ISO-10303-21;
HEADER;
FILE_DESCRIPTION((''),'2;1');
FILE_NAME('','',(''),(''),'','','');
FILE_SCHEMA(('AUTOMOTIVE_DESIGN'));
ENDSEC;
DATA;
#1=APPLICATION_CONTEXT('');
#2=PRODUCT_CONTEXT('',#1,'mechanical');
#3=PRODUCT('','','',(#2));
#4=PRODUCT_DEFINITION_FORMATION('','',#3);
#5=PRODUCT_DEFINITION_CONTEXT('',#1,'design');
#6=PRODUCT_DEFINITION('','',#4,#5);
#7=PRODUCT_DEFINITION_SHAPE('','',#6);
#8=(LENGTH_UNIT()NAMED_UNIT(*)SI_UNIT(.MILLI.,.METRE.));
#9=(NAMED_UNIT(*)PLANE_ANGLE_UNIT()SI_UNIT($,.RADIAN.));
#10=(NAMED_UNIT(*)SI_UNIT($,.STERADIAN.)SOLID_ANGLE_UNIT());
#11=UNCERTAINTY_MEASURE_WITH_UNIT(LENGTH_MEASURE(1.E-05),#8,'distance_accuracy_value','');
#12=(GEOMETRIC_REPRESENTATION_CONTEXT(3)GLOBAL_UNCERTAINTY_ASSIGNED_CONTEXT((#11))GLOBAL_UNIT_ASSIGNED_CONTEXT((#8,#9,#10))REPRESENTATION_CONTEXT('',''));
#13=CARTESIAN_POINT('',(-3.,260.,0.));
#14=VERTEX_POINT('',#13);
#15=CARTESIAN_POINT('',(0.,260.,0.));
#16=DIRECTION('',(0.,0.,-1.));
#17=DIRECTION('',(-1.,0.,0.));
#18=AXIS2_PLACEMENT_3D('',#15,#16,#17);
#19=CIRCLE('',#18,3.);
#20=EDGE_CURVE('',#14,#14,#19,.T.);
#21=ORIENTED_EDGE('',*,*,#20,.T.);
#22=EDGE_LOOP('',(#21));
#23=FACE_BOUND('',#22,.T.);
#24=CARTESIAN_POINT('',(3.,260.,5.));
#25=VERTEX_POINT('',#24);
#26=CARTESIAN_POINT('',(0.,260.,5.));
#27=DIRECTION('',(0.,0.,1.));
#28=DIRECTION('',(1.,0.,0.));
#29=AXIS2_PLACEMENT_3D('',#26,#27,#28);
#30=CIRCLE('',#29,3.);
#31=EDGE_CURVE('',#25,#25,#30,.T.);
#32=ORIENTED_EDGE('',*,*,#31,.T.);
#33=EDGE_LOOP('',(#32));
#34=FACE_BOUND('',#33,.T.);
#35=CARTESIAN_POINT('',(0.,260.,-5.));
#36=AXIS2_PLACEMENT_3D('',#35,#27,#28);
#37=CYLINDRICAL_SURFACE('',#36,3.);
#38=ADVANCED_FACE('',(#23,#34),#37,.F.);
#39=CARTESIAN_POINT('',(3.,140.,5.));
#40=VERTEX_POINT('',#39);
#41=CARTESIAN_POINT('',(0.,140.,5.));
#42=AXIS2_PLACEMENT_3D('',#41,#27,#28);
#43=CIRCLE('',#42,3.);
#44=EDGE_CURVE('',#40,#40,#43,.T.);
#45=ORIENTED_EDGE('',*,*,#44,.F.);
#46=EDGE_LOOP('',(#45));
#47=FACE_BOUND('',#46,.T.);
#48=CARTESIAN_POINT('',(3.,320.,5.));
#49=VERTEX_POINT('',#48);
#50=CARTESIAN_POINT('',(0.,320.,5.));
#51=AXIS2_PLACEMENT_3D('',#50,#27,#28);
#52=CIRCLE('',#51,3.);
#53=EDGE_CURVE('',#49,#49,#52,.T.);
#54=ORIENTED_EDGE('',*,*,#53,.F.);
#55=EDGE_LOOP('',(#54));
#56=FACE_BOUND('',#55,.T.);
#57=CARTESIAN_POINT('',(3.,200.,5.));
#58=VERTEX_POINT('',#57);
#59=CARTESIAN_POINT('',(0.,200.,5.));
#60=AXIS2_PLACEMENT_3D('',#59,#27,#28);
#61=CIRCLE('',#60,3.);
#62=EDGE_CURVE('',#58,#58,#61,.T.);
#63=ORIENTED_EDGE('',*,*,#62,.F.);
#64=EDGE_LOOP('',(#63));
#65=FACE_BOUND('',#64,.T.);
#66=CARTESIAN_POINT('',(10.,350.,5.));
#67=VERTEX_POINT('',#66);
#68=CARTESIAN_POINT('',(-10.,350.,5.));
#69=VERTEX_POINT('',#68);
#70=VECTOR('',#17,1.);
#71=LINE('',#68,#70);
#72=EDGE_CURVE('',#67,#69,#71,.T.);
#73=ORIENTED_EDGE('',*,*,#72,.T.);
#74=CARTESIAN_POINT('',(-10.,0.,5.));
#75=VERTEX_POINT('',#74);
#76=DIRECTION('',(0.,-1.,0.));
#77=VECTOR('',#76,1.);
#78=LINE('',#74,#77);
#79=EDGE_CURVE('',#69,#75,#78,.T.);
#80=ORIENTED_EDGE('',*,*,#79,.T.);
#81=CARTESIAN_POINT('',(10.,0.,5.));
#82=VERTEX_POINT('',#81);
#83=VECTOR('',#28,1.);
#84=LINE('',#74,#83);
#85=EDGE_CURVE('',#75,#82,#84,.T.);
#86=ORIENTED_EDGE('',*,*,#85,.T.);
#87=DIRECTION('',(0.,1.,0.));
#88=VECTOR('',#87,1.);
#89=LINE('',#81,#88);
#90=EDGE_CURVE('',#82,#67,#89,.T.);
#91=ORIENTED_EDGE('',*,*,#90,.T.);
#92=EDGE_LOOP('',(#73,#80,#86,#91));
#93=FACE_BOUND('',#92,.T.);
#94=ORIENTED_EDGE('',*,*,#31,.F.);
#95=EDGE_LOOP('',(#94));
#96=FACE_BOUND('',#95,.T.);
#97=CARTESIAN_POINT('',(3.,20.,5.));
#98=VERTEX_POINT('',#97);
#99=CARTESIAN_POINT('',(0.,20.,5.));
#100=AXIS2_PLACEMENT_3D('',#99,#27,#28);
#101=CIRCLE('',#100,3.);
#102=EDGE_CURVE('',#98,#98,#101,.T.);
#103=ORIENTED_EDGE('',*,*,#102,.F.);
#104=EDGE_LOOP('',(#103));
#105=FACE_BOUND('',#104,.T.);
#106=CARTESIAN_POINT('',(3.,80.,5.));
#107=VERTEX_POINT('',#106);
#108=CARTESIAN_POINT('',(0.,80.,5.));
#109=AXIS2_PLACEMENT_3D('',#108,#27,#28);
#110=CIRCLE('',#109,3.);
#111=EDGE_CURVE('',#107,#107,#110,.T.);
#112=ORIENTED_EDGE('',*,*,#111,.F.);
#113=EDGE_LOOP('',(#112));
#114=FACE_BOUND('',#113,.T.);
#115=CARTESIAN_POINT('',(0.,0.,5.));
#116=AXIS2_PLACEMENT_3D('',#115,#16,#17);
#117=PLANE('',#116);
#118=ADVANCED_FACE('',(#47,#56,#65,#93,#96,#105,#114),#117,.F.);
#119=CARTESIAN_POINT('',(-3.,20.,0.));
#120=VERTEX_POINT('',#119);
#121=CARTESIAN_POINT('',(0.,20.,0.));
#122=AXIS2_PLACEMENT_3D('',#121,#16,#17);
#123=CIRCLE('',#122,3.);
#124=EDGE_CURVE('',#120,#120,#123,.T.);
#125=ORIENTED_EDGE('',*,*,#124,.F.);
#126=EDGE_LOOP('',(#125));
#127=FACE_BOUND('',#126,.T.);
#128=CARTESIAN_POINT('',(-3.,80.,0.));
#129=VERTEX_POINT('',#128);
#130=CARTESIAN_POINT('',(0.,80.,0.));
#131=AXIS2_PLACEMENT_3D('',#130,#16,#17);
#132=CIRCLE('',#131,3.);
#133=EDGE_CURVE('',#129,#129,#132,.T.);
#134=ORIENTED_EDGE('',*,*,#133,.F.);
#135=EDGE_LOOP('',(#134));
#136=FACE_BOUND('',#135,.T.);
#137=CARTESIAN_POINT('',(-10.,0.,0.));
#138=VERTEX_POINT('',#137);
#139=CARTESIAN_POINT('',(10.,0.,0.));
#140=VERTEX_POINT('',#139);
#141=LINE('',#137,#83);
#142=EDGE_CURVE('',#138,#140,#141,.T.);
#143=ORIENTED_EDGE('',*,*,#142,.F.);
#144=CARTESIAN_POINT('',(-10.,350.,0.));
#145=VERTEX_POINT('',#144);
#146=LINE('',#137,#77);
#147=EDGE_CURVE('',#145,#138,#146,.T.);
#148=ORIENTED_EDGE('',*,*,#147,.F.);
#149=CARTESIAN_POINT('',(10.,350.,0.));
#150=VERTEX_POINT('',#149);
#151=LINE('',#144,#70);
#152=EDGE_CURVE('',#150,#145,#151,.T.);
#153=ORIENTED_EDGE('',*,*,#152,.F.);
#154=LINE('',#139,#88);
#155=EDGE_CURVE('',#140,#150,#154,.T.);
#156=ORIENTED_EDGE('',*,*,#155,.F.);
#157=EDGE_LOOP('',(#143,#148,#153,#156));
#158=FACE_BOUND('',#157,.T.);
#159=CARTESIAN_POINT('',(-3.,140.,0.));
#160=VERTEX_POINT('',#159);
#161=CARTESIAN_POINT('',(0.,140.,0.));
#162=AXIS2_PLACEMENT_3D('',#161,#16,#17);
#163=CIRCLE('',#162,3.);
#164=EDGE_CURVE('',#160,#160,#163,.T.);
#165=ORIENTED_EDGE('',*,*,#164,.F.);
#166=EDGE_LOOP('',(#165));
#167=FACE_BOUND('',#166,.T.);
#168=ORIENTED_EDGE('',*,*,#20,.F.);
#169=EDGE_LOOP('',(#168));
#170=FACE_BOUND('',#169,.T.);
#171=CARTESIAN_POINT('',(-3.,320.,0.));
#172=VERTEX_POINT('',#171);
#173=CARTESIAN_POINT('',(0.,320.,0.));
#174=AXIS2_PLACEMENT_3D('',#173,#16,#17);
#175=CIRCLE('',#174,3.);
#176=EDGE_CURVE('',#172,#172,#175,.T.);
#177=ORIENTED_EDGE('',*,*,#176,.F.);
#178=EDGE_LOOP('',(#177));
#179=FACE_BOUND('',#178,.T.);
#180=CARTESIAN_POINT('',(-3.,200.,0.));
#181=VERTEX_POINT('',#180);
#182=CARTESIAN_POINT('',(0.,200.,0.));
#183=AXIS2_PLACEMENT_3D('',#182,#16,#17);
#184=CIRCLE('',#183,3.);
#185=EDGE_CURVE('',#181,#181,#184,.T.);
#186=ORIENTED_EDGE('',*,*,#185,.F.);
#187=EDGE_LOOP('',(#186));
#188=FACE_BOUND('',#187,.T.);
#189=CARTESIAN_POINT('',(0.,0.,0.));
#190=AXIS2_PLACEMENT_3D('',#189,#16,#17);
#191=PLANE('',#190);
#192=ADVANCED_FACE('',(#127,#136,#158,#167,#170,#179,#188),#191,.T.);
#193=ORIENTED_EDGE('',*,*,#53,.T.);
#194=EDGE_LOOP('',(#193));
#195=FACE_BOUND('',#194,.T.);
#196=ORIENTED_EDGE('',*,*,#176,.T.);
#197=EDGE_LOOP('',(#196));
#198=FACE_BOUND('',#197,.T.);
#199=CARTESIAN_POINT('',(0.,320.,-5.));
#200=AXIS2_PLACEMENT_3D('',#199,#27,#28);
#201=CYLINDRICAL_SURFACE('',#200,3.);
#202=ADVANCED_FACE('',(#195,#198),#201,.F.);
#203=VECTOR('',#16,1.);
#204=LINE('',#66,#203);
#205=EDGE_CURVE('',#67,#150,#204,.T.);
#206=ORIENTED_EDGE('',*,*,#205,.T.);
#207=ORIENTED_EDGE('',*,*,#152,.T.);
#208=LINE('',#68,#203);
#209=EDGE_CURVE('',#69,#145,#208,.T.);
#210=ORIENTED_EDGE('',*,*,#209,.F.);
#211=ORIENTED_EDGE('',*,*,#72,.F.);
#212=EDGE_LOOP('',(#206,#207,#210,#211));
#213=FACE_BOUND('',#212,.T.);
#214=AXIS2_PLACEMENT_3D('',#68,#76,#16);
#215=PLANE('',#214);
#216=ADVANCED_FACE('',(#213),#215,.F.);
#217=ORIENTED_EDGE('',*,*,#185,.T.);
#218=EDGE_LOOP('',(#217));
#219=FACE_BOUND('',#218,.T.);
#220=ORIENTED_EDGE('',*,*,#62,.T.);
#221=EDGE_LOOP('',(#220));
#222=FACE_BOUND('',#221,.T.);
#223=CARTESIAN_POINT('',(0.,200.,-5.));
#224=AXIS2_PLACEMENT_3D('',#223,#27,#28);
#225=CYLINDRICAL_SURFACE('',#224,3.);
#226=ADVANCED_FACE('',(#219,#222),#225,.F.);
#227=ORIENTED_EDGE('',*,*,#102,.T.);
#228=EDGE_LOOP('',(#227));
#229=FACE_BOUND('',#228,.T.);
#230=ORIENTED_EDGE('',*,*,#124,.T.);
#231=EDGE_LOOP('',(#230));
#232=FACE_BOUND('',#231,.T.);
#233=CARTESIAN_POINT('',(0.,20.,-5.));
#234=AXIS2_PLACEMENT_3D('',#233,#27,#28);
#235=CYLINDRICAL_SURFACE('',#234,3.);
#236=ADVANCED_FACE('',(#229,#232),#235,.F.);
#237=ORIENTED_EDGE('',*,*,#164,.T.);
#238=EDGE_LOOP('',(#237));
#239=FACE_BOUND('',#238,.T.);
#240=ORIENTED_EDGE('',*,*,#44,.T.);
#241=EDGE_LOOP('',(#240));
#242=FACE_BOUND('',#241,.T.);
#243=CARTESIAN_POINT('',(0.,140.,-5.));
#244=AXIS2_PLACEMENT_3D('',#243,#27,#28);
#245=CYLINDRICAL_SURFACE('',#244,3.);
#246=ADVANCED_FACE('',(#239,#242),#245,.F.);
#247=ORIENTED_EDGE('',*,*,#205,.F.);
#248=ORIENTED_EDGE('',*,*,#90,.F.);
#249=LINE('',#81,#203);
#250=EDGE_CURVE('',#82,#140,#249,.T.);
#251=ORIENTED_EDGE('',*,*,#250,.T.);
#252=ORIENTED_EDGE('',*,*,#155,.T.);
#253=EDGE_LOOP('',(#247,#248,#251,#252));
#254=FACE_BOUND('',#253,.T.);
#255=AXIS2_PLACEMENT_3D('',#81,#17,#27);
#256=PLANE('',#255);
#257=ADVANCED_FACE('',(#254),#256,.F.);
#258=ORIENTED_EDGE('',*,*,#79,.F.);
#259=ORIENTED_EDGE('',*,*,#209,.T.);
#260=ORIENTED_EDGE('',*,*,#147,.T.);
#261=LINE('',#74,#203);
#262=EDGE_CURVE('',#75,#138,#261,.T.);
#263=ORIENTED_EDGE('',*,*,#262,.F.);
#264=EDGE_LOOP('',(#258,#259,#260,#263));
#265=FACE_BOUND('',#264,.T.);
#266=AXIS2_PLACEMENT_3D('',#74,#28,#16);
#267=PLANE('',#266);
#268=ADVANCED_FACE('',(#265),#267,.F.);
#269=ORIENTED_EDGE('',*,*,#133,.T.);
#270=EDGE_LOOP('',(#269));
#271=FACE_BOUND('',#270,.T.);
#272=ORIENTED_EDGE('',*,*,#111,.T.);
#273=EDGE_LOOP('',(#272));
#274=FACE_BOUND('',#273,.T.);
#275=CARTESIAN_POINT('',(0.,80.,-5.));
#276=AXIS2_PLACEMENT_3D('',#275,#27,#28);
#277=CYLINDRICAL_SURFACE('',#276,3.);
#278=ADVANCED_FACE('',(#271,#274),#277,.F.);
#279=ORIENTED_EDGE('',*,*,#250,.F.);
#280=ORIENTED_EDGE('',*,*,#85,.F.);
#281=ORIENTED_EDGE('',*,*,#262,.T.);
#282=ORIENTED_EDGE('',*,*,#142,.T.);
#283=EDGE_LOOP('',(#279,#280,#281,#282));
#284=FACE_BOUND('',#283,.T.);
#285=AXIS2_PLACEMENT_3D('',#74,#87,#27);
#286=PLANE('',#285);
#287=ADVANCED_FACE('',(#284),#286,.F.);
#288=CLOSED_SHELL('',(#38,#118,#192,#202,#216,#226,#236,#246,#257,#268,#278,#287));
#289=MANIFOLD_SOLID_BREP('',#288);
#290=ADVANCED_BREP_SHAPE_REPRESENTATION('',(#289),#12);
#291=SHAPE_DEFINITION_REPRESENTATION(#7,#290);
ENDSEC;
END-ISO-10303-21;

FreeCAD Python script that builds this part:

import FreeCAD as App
import Part
import Sketcher
from FreeCAD import Vector

doc = App.newDocument("Part")
body = doc.addObject("PartDesign::Body", "Body")

sketch1 = body.newObject("Sketcher::SketchObject", "Sketch")
sketch1.AttachmentSupport = (doc.getObject("XY_Plane"), [""])
sketch1.MapMode = "FlatFace"
sketch1.addGeometry([
    Part.LineSegment(Vector(-10, 350, 0), Vector(-10, 0, 0)),
    Part.LineSegment(Vector(-10, 0, 0), Vector(10, 0, 0)),
    Part.LineSegment(Vector(10, 0, 0), Vector(10, 350, 0)),
    Part.LineSegment(Vector(10, 350, 0), Vector(-10, 350, 0)),
], False)
sketch1.addConstraint([
    Sketcher.Constraint("Coincident", 0, 2, 1, 1),
    Sketcher.Constraint("Coincident", 1, 2, 2, 1),
    Sketcher.Constraint("Coincident", 2, 2, 3, 1),
    Sketcher.Constraint("Coincident", 3, 2, 0, 1),
    Sketcher.Constraint("Vertical", 0),
    Sketcher.Constraint("Horizontal", 1),
    Sketcher.Constraint("Vertical", 2),
    Sketcher.Constraint("Horizontal", 3),
    Sketcher.Constraint("Symmetric", 0, 2, 1, 2, -1, 1),
    Sketcher.Constraint("DistanceX", 1, 1, 1, 2, 20.0),
    Sketcher.Constraint("DistanceY", 0, 2, 0, 1, 350.0),
])
pad1 = body.newObject("PartDesign::Pad", "Pad")
pad1.Profile = sketch1
pad1.Length = 5

sketch2 = body.newObject("Sketcher::SketchObject", "Sketch001")
sketch2.AttachmentSupport = (doc.getObject("XY_Plane"), [""])
sketch2.MapMode = "FlatFace"
sketch2.AttachmentOffset = App.Placement(Vector(0, 0, 5), App.Rotation())
sketch2.addGeometry(Part.Circle(Vector(0, 20, 0), Vector(0, 0, 1), 3), False)
sketch2.addConstraint([
    Sketcher.Constraint("PointOnObject", 0, 3, -2),
    Sketcher.Constraint("Diameter", 0, 6.0),
    Sketcher.Constraint("DistanceY", -1, 1, 0, 3, 20.0),
])
pocket1 = body.newObject("PartDesign::Pocket", "Pocket")
pocket1.Profile = sketch2
pocket1.Length = 10
doc.recompute()

linearpattern = body.newObject("PartDesign::LinearPattern", "LinearPattern")
linearpattern.Originals = [pocket1]
linearpattern.Direction = (doc.getObject("Y_Axis"), [""])
linearpattern.Mode = "offset"
linearpattern.Offset = 60
linearpattern.Occurrences = 6
body.Tip = linearpattern

doc.recompute()
